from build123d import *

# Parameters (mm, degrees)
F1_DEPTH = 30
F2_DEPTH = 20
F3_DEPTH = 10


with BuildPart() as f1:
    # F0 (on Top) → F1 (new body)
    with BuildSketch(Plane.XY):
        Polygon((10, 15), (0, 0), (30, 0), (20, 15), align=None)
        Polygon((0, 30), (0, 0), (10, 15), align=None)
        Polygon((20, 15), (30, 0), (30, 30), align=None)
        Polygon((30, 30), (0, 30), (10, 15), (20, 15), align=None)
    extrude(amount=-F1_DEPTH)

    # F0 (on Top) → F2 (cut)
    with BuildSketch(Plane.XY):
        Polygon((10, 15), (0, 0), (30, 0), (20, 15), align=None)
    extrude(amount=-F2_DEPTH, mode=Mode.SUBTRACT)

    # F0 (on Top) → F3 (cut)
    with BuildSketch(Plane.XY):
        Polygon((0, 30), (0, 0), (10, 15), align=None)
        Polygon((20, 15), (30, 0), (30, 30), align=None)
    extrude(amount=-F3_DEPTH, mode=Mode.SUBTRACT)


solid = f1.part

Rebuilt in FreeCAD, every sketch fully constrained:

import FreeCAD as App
import Part
import Sketcher

V = App.Vector
Q = App.Units.Quantity


def add_polygon(sketch, points):
    """Adds a closed chain of lines whose ends are joined by coincident constraints."""
    first, n = sketch.GeometryCount, len(points)
    for a, b in zip(points, points[1:] + points[:1]):
        sketch.addGeometry(Part.LineSegment(App.Vector(*a, 0), App.Vector(*b, 0)), False)
    for i in range(n):
        sketch.addConstraint(Sketcher.Constraint("Coincident", first + i, 2, first + (i + 1) % n, 1))

doc = App.newDocument("Part")
body = doc.addObject("PartDesign::Body", "Body")

# Sketch on XY plane
sketch1 = doc.addObject("Sketcher::SketchObject", "Sketch")
body.addObject(sketch1)
sketch1.AttachmentSupport = (doc.XY_Plane, [""])
sketch1.MapMode = "FlatFace"
add_polygon(sketch1, [(0, 0), (30, 0), (30, 30), (0, 30)])  # lines 0-3
sketch1.addConstraint([
    Sketcher.Constraint("Horizontal", 0),
    Sketcher.Constraint("Vertical", 1),
    Sketcher.Constraint("Horizontal", 2),
    Sketcher.Constraint("Vertical", 3),
    Sketcher.Constraint("Coincident", 3, 2, -1, 1),
    Sketcher.Constraint("Equal", 2, 1),
    Sketcher.Constraint("DistanceX", 0, 1, 0, 2, Q("30 mm")),
])
pad1 = doc.addObject("PartDesign::Pad", "Pad")
body.addObject(pad1)
pad1.Profile = sketch1
pad1.Length = 30
pad1.Reversed = True

# Sketch on XY plane
sketch2 = doc.addObject("Sketcher::SketchObject", "Sketch001")
body.addObject(sketch2)
sketch2.AttachmentSupport = (doc.XY_Plane, [""])
sketch2.MapMode = "FlatFace"
add_polygon(sketch2, [(10, 15), (0, 0), (30, 0), (20, 15)])  # lines 0-3
sketch2.addConstraint([
    Sketcher.Constraint("Horizontal", 1),
    Sketcher.Constraint("Horizontal", 3),
    Sketcher.Constraint("Coincident", 0, 2, -1, 1),
    Sketcher.Constraint("Equal", 0, 2),
    Sketcher.Constraint("DistanceX", 1, 1, 1, 2, Q("30 mm")),
    Sketcher.Constraint("DistanceX", 3, 2, 3, 1, Q("10 mm")),
    Sketcher.Constraint("DistanceY", -1, 1, 2, 2, Q("15 mm")),
])
pocket1 = doc.addObject("PartDesign::Pocket", "Pocket")
body.addObject(pocket1)
pocket1.Profile = sketch2
pocket1.Length = 20

# Sketch on XY plane
sketch3 = doc.addObject("Sketcher::SketchObject", "Sketch002")
body.addObject(sketch3)
sketch3.AttachmentSupport = (doc.XY_Plane, [""])
sketch3.MapMode = "FlatFace"
add_polygon(sketch3, [(0, 30), (0, 0), (10, 15)])  # lines 0-2
add_polygon(sketch3, [(20, 15), (30, 0), (30, 30)])  # lines 3-5
sketch3.addConstraint([
    Sketcher.Constraint("Vertical", 0),
    Sketcher.Constraint("Vertical", 4),
    Sketcher.Constraint("Coincident", 0, 2, -1, 1),
    Sketcher.Constraint("PointOnObject", 3, 2, -1),
    Sketcher.Constraint("Parallel", 2, 3),
    Sketcher.Constraint("Parallel", 1, 5),
    Sketcher.Constraint("Horizontal", 2, 2, 4, 2),
    Sketcher.Constraint("Horizontal", 1, 2, 5, 2),
    Sketcher.Constraint("DistanceY", 0, 2, 0, 1, Q("30 mm")),
    Sketcher.Constraint("DistanceX", -1, 1, 1, 2, Q("10 mm")),
    Sketcher.Constraint("DistanceX", -1, 1, 3, 2, Q("30 mm")),
])
pocket2 = doc.addObject("PartDesign::Pocket", "Pocket001")
body.addObject(pocket2)
pocket2.Profile = sketch3
pocket2.Length = 10

doc.recompute()
